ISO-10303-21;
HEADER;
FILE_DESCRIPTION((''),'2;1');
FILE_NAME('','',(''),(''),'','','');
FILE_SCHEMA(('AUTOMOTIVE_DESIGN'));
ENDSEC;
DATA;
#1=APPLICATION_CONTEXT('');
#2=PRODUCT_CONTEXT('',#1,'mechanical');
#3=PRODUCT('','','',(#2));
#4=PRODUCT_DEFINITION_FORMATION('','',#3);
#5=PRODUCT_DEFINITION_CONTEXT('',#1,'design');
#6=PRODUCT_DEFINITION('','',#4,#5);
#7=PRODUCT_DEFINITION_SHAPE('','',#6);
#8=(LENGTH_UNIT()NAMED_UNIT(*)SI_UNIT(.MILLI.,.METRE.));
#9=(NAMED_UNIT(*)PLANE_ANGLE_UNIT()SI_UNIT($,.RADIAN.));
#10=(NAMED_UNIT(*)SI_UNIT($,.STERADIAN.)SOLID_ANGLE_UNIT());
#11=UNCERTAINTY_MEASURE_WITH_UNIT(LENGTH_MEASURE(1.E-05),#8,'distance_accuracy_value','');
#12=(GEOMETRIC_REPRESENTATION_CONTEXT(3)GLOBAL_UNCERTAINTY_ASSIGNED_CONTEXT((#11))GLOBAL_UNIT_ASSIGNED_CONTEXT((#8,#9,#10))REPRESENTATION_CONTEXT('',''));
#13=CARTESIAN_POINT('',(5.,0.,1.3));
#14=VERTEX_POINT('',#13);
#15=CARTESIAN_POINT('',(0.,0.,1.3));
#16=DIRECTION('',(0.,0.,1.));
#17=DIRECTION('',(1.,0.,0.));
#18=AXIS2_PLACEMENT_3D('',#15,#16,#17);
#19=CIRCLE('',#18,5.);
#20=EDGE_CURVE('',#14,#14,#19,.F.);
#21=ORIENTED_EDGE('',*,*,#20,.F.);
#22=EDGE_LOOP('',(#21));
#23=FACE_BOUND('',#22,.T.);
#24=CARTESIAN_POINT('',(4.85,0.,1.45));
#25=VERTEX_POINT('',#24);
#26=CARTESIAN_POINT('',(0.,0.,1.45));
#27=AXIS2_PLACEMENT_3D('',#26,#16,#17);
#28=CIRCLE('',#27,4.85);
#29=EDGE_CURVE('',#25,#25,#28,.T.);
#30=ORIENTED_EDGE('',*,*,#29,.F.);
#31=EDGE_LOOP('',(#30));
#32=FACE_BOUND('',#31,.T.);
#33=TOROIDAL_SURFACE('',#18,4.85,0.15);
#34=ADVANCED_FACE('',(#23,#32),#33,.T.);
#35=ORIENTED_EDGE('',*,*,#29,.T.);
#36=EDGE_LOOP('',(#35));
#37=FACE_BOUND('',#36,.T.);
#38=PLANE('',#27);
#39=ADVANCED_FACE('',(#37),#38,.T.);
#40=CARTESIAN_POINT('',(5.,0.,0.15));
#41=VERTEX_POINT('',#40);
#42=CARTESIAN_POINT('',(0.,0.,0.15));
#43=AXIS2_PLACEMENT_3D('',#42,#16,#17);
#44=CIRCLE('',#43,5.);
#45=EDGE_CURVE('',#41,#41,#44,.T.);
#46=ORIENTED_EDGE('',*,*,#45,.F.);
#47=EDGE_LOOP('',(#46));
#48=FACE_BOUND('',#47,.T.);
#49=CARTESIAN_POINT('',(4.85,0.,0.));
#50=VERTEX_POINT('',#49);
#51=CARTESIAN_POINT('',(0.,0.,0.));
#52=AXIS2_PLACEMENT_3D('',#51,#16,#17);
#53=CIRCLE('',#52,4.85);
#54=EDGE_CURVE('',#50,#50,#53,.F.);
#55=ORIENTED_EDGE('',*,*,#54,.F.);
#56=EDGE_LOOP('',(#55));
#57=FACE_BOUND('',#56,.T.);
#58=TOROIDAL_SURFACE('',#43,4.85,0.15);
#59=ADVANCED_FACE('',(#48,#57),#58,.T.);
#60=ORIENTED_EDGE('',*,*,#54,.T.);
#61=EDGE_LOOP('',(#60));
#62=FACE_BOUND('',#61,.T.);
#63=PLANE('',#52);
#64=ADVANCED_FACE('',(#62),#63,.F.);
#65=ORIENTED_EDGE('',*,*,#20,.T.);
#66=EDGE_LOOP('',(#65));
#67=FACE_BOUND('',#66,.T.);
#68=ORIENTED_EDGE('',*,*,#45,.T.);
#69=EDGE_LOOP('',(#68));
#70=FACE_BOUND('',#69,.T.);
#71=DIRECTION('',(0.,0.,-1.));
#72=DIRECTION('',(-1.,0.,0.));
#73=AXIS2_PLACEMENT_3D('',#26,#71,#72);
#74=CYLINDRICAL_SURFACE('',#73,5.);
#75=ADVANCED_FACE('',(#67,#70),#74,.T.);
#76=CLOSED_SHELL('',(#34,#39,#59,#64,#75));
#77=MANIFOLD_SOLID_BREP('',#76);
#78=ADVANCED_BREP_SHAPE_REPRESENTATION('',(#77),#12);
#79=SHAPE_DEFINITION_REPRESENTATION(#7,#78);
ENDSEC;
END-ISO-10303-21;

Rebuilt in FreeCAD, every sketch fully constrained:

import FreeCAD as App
import Part
import Sketcher

V = App.Vector
Q = App.Units.Quantity


def edges_at(feature, points):
    """Names of the edges that pass closest to the given points."""
    edges = feature.Shape.Edges
    near = lambda p: min(range(len(edges)), key=lambda i: edges[i].distToShape(Part.Vertex(*p))[0])
    return sorted({f"Edge{near(p) + 1}" for p in points})

doc = App.newDocument("Part")
body = doc.addObject("PartDesign::Body", "Body")

sketch1 = body.newObject("Sketcher::SketchObject", "Sketch")
sketch1.AttachmentSupport = (doc.getObject("XY_Plane"), [""])
sketch1.MapMode = "FlatFace"
sketch1.addGeometry(Part.Circle(V(0, 0, 0), V(0, 0, 1), 5), False)
sketch1.addConstraint(Sketcher.Constraint("Coincident", 0, 3, -1, 1))
sketch1.addConstraint(Sketcher.Constraint("Diameter", 0, Q("10 mm")))
pad1 = body.newObject("PartDesign::Pad", "Pad")
pad1.Profile = sketch1
pad1.Length = 1.45
doc.recompute()

fillet = body.newObject("PartDesign::Fillet", "Fillet")
fillet.Base = (pad1, edges_at(pad1, [(-5, 0, 0), (-5, 0, 1.45)]))
fillet.Radius = 0.15

doc.recompute()
